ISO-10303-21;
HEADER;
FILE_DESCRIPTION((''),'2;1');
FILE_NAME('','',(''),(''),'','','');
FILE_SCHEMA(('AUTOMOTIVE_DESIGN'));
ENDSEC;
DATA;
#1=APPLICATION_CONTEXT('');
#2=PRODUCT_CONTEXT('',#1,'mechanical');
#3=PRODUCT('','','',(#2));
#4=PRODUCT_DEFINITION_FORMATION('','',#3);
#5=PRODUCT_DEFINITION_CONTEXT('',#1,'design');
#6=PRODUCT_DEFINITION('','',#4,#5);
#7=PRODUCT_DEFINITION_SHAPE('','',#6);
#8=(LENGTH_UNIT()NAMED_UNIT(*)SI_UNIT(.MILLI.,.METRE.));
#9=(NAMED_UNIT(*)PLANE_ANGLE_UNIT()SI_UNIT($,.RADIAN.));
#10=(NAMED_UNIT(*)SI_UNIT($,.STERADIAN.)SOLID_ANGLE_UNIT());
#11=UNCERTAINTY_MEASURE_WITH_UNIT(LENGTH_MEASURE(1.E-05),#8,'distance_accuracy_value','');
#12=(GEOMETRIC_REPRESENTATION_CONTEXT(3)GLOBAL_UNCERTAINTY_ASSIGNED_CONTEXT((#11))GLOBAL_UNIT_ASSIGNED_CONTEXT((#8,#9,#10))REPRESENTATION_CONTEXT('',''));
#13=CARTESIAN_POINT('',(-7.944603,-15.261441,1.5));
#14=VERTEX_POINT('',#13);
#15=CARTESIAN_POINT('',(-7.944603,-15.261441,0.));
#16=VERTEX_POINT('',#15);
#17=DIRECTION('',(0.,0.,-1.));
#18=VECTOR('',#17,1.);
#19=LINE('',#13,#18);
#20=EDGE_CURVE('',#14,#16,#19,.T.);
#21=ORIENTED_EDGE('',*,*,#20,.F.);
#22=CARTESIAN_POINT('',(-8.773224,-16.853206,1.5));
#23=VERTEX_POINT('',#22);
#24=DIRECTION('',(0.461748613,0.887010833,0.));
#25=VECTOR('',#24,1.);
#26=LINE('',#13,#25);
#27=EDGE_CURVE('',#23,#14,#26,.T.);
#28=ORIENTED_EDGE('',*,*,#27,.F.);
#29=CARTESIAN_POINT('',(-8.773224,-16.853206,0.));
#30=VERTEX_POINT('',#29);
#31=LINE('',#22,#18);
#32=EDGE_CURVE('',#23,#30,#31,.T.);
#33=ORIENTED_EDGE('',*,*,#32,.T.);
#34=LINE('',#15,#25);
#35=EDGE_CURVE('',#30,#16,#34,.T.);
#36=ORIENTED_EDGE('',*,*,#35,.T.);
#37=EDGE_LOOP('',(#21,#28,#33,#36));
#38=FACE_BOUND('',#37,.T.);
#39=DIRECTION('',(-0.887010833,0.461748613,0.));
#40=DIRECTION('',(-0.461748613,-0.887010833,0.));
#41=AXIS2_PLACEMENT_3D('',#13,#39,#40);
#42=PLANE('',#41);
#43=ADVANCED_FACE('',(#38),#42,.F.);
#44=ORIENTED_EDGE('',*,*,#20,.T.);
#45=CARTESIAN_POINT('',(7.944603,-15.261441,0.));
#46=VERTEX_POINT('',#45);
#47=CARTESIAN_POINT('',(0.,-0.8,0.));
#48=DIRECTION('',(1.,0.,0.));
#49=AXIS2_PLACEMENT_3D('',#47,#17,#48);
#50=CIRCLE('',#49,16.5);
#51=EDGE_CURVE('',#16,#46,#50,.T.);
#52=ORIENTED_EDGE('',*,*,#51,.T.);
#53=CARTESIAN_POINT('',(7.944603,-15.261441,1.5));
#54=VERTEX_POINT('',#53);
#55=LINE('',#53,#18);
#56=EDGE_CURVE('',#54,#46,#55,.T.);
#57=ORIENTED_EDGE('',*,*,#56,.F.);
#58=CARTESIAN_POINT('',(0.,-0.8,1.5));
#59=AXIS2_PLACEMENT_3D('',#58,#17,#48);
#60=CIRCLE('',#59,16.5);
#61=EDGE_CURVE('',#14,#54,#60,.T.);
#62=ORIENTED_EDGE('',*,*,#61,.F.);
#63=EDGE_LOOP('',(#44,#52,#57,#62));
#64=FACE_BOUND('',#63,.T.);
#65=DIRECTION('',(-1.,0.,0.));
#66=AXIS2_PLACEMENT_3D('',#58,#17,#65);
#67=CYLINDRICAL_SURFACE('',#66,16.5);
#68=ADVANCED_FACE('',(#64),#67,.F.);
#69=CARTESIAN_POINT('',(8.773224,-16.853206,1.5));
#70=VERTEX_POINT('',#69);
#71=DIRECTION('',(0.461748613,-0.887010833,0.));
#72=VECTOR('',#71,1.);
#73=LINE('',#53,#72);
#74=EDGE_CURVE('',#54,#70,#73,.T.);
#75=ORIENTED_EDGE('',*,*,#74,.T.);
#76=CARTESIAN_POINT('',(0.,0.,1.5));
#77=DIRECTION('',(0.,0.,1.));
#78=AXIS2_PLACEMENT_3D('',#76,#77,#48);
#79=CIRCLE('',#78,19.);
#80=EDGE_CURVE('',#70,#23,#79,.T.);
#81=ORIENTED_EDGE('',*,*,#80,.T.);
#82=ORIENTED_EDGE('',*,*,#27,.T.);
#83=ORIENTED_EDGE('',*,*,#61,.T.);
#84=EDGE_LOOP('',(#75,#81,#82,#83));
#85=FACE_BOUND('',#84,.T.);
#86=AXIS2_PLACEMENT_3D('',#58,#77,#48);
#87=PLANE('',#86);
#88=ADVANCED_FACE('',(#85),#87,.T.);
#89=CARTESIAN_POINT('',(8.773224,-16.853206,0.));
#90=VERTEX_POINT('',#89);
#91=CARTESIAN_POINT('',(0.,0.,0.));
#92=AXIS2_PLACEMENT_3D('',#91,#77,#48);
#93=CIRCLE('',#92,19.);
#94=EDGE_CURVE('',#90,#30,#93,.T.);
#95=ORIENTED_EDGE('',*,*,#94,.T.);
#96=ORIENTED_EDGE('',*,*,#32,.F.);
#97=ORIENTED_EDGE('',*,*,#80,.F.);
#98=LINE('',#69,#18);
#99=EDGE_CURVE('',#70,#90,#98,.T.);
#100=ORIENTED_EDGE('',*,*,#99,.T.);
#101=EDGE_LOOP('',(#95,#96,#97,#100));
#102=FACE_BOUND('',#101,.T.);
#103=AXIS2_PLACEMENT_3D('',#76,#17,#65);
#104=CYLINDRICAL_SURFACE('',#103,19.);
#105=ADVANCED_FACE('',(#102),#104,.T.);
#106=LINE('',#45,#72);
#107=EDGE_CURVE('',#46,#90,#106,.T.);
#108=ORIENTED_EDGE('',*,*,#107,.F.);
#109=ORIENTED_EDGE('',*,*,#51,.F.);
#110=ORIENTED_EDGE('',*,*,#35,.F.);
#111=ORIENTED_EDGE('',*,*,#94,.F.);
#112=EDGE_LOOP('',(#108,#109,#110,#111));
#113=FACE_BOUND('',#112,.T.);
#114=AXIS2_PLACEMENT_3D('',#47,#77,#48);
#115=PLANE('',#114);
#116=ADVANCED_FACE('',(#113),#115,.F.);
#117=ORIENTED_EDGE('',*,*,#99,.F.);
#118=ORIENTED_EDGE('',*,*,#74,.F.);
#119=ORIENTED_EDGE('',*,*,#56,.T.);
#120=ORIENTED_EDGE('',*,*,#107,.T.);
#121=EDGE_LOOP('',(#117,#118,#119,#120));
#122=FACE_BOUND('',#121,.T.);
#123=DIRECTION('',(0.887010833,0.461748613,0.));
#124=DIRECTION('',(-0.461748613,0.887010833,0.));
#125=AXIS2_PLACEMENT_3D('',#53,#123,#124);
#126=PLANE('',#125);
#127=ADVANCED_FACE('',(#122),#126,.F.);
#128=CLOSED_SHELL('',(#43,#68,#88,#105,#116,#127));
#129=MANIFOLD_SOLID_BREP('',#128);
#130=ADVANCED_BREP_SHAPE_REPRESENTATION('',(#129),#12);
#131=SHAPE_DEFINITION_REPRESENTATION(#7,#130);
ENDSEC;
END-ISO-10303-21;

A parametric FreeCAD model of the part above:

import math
import FreeCAD as App
import Part
import Sketcher
from FreeCAD import Vector
Q = App.Units.Quantity

doc = App.newDocument("Part")
body = doc.addObject("PartDesign::Body", "Body")

sketch1 = body.newObject("Sketcher::SketchObject", "Sketch")
sketch1.AttachmentSupport = (doc.getObject("XY_Plane"), [""])
sketch1.MapMode = "FlatFace"
sketch1.addGeometry([
    Part.LineSegment(Vector(-8.8, -16.9, 0), Vector(-7.9, -15.3, 0)),
    Part.ArcOfCircle(Part.Circle(Vector(0, -0.8, 0), Vector(0, 0, 1), 16.5), math.radians(-61), math.radians(241)),
    Part.LineSegment(Vector(7.9, -15.3, 0), Vector(8.8, -16.9, 0)),
    Part.ArcOfCircle(Part.Circle(Vector(0, 0, 0), Vector(0, 0, 1), 19), math.radians(-63), math.radians(243)),
], False)
sketch1.addConstraint([
    Sketcher.Constraint("Coincident", 0, 2, 1, 2),
    Sketcher.Constraint("Coincident", 1, 1, 2, 1),
    Sketcher.Constraint("Coincident", 2, 2, 3, 1),
    Sketcher.Constraint("Coincident", 3, 2, 0, 1),
    Sketcher.Constraint("Coincident", 3, 3, -1, 1),
    Sketcher.Constraint("Symmetric", 0, 2, 1, 1, -2),
    Sketcher.Constraint("Horizontal", 2, 2, 3, 2),
    Sketcher.Constraint("Radius", 3, 19.0),
    Sketcher.Constraint("Radius", 1, 16.5),
    Sketcher.Constraint("Angle", 0, Q("62.5 deg")),
    Sketcher.Constraint("DistanceY", 1, 3, -1, 1, 0.8),
    Sketcher.Constraint("DistanceY", 0, 2, -1, 1, 15.261441),
])
pad1 = body.newObject("PartDesign::Pad", "Pad")
pad1.Profile = sketch1
pad1.Length = 1.5

doc.recompute()
